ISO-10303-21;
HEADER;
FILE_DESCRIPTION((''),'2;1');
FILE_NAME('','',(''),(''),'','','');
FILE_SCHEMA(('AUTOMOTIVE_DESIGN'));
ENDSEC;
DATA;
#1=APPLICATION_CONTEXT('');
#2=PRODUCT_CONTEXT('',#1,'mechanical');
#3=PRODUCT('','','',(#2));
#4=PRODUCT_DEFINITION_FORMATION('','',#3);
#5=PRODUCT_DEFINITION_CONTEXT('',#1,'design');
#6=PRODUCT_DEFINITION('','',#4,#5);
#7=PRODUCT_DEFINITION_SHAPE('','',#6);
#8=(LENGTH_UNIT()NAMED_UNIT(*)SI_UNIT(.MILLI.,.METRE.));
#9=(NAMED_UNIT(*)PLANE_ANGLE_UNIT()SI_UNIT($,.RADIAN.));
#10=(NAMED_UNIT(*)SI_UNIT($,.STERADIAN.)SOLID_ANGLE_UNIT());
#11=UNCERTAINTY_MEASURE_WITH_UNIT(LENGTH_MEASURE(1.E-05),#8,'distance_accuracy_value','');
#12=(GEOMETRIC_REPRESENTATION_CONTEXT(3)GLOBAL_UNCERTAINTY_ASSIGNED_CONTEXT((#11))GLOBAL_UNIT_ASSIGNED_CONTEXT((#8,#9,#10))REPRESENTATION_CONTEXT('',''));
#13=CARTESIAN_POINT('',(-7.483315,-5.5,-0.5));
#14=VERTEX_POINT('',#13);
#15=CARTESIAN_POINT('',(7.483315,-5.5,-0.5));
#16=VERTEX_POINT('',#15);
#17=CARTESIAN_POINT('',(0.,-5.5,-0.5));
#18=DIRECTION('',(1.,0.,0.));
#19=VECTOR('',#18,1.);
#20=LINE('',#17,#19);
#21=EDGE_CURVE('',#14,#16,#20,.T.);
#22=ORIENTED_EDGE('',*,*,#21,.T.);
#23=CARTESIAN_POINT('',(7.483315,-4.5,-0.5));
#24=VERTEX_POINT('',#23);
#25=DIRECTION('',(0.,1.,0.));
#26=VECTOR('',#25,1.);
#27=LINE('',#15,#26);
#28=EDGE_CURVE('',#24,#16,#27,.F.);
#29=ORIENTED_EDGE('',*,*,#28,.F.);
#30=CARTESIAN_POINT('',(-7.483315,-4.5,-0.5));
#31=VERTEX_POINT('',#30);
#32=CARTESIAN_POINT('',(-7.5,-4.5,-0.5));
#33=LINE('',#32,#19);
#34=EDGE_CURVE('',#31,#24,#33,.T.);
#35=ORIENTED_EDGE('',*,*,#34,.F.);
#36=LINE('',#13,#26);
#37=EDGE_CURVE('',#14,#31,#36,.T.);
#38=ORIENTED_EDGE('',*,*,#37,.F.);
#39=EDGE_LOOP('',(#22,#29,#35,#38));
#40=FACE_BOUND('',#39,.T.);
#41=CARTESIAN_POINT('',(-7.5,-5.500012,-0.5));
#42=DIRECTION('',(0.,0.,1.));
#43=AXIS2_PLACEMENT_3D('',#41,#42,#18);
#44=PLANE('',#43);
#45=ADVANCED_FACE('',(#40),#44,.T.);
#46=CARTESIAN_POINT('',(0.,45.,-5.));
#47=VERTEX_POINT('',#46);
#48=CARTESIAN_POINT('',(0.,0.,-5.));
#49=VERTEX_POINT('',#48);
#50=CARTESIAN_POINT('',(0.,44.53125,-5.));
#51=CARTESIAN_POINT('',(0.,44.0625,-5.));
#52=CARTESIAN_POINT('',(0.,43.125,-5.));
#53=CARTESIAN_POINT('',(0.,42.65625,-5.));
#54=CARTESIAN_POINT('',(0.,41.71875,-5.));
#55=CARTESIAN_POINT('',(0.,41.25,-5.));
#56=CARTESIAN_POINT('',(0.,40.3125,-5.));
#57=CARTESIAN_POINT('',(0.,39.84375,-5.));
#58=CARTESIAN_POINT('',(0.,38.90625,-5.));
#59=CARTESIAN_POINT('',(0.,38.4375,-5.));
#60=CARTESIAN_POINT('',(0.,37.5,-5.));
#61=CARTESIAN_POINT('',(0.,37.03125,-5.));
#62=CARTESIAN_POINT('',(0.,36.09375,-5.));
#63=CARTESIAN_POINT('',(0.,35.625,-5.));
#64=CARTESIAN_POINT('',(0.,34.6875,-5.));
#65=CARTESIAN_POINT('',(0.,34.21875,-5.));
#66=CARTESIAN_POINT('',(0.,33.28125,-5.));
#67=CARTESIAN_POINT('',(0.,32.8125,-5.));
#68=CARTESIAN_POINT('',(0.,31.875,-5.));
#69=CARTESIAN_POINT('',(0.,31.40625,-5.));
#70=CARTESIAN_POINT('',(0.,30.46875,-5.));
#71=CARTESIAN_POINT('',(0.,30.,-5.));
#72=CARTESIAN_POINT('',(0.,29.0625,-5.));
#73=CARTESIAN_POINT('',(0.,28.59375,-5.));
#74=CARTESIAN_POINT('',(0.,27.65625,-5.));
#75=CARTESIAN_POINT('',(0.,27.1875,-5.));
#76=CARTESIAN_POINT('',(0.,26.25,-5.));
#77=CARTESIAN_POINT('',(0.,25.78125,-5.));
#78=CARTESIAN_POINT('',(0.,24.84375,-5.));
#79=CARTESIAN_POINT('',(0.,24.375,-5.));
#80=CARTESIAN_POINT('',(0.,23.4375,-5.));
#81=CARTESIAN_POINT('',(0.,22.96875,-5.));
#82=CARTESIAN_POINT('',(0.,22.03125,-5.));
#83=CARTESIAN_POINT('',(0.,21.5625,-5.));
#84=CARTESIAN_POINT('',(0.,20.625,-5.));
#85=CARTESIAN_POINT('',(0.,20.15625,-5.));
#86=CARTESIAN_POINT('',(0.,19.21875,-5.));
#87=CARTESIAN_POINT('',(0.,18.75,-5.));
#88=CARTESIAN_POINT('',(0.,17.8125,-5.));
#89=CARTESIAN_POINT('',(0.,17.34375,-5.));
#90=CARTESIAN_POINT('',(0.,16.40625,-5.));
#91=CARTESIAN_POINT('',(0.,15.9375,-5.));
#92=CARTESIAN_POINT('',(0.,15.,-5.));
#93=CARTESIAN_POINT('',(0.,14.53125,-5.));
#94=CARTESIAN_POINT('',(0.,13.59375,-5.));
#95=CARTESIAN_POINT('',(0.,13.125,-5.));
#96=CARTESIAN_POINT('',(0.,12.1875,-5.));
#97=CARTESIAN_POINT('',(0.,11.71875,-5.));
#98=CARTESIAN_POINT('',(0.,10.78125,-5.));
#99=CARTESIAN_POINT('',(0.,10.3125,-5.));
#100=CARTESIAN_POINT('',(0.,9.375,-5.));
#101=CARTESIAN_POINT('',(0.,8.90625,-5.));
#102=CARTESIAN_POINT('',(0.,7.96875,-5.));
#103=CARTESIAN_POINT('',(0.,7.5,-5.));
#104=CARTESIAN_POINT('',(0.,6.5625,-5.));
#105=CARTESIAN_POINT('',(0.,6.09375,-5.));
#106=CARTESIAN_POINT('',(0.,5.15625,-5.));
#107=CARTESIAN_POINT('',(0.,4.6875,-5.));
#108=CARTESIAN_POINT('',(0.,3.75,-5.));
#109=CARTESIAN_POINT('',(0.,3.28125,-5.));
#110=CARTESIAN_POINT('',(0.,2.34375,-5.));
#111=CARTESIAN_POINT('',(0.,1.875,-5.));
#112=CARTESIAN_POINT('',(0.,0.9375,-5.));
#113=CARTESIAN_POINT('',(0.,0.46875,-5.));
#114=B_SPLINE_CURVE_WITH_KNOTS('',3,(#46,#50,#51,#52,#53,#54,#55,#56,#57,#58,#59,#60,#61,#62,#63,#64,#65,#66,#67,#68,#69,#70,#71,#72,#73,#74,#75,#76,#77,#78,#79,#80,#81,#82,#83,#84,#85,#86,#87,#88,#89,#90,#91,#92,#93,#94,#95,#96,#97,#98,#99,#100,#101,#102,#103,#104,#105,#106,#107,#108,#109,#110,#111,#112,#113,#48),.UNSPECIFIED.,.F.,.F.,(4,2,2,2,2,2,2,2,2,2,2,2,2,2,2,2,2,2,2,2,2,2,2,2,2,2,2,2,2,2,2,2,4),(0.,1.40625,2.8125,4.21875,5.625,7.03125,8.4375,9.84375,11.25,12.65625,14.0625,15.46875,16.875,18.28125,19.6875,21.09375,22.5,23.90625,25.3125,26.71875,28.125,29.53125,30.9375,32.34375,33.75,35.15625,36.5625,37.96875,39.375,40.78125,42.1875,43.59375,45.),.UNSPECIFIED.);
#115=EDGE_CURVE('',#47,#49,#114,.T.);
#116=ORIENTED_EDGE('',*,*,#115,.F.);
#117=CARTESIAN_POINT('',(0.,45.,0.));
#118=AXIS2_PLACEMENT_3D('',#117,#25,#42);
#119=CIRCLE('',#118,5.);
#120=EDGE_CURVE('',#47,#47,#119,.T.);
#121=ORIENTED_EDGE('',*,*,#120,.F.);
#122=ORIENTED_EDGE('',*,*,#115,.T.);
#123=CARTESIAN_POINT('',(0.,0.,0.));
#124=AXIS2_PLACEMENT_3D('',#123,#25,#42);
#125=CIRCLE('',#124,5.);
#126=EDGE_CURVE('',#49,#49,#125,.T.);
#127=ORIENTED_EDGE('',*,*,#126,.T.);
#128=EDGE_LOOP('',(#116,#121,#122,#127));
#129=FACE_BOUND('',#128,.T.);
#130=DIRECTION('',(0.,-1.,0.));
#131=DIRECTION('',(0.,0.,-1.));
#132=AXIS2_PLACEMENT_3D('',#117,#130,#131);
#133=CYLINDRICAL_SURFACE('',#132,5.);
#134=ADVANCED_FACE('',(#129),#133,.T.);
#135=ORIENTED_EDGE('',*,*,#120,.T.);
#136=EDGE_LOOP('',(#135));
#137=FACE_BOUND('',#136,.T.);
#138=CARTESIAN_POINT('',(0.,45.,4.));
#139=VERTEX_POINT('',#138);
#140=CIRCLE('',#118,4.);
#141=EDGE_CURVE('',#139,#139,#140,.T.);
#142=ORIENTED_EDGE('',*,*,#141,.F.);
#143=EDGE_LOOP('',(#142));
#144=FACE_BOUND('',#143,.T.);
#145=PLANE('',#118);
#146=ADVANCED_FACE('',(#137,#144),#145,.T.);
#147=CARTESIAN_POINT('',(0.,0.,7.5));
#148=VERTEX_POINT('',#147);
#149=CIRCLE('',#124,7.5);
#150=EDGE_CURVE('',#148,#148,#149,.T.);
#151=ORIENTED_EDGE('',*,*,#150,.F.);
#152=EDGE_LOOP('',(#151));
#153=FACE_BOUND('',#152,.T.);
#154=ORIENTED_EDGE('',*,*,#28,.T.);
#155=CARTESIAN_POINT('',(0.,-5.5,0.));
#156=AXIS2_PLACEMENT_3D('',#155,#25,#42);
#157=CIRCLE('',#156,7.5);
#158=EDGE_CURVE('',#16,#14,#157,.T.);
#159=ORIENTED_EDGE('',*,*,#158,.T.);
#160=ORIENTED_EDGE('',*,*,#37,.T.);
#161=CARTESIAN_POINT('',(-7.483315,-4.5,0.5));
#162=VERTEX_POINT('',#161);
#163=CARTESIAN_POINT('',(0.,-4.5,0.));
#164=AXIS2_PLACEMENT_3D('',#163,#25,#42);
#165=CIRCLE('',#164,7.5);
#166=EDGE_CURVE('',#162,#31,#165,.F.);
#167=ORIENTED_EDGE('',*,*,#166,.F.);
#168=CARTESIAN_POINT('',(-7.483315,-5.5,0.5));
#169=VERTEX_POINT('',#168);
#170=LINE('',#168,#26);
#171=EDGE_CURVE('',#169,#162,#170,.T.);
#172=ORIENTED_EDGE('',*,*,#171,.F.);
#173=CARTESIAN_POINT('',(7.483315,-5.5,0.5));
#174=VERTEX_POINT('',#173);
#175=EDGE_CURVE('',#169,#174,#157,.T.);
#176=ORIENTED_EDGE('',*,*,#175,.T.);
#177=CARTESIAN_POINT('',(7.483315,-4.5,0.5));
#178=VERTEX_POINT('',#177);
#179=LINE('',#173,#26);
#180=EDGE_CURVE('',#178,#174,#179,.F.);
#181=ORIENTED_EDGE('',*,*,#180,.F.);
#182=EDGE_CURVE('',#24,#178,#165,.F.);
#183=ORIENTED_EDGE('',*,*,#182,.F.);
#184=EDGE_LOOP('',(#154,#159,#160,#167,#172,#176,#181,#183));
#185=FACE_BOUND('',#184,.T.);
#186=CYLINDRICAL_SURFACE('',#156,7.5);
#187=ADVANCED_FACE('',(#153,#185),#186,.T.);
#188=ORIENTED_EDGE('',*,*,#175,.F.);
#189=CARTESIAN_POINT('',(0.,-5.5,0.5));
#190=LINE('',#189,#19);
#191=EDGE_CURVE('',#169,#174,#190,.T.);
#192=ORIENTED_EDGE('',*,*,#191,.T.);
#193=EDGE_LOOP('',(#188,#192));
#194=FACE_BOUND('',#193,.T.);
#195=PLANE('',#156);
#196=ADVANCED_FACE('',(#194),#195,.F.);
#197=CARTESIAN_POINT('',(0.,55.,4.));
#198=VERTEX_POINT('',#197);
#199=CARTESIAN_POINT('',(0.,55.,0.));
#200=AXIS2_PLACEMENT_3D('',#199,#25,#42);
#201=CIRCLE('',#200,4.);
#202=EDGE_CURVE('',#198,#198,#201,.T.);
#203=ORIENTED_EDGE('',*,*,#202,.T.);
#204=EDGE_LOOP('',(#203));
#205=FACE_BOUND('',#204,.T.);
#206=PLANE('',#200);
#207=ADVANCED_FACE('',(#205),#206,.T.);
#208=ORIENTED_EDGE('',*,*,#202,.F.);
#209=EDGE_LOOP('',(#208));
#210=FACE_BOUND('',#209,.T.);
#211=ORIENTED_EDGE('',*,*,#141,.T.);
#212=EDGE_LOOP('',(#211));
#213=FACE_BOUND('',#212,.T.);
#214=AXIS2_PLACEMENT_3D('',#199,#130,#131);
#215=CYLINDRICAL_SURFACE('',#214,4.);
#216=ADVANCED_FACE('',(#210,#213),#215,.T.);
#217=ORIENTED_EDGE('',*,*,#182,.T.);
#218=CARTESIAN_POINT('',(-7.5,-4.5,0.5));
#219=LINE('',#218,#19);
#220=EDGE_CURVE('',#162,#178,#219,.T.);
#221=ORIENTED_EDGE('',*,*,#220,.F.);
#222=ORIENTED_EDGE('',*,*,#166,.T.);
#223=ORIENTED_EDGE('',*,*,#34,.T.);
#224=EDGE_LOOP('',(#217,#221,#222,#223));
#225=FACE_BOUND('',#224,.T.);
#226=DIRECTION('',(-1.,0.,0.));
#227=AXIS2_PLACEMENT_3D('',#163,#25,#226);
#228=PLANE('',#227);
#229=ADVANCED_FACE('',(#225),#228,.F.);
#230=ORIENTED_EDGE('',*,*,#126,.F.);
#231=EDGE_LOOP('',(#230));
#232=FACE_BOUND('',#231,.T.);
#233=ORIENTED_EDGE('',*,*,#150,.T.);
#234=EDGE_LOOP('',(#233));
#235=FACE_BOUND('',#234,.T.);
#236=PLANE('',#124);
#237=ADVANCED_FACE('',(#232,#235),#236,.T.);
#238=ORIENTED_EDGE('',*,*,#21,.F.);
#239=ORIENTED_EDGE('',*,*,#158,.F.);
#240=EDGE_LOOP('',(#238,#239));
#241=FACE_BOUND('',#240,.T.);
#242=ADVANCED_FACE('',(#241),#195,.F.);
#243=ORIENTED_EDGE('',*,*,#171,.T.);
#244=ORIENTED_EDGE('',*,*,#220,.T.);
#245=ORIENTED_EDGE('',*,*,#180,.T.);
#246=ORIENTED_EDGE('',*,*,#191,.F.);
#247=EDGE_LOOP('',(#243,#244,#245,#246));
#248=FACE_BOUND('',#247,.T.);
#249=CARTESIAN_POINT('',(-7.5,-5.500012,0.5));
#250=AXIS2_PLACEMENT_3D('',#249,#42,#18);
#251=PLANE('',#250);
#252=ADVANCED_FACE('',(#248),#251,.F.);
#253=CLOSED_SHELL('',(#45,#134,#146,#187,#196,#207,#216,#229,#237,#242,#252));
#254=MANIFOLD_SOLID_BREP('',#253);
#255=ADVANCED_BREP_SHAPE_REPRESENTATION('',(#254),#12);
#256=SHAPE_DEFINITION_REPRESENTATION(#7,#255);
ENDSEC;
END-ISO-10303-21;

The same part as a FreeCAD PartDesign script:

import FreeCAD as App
import Part
import Sketcher
Q = App.Units.Quantity


def add_polygon(sketch, points):
    """Adds a closed chain of lines whose ends are joined by coincident constraints."""
    first, n = sketch.GeometryCount, len(points)
    for a, b in zip(points, points[1:] + points[:1]):
        sketch.addGeometry(Part.LineSegment(App.Vector(*a, 0), App.Vector(*b, 0)), False)
    for i in range(n):
        sketch.addConstraint(Sketcher.Constraint("Coincident", first + i, 2, first + (i + 1) % n, 1))

doc = App.newDocument("Part")
body = doc.addObject("PartDesign::Body", "Body")

# Sketch on XZ plane
sketch1 = body.newObject("Sketcher::SketchObject", "Sketch")
sketch1.AttachmentSupport = (doc.getObject("XZ_Plane"), [""])
sketch1.MapMode = "FlatFace"
sketch1.addGeometry(Part.Circle(App.Vector(0, 0, 0), App.Vector(0, 0, 1), 7.5), False)
sketch1.addConstraint([
    Sketcher.Constraint("Coincident", 0, 3, -1, 1),
    Sketcher.Constraint("Diameter", 0, Q("15 mm")),
])
pad1 = body.newObject("PartDesign::Pad", "Pad")
pad1.Profile = sketch1
pad1.Length = 5.5

# Sketch on XZ plane
sketch2 = body.newObject("Sketcher::SketchObject", "Sketch001")
sketch2.AttachmentSupport = (doc.getObject("XZ_Plane"), [""])
sketch2.MapMode = "FlatFace"
sketch2.addGeometry(Part.Circle(App.Vector(0, 0, 0), App.Vector(0, 0, 1), 5), False)
sketch2.addConstraint([
    Sketcher.Constraint("Coincident", 0, 3, -1, 1),
    Sketcher.Constraint("Diameter", 0, Q("10 mm")),
])
pad2 = body.newObject("PartDesign::Pad", "Pad001")
pad2.Profile = sketch2
pad2.Length = 45
pad2.Reversed = True

# Sketch on XZ plane
sketch3 = body.newObject("Sketcher::SketchObject", "Sketch002")
sketch3.AttachmentSupport = (doc.getObject("XZ_Plane"), [""])
sketch3.MapMode = "FlatFace"
sketch3.AttachmentOffset = App.Placement(App.Vector(0, 0, -45), App.Rotation())
sketch3.addGeometry(Part.Circle(App.Vector(0, 0, 0), App.Vector(0, 0, 1), 4), False)
sketch3.addConstraint([
    Sketcher.Constraint("Coincident", 0, 3, -1, 1),
    Sketcher.Constraint("Diameter", 0, Q("8 mm")),
])
pad3 = body.newObject("PartDesign::Pad", "Pad002")
pad3.Profile = sketch3
pad3.Length = 10
pad3.Reversed = True

# Sketch on XZ plane
sketch4 = body.newObject("Sketcher::SketchObject", "Sketch003")
sketch4.AttachmentSupport = (doc.getObject("XZ_Plane"), [""])
sketch4.MapMode = "FlatFace"
sketch4.AttachmentOffset = App.Placement(App.Vector(0, 0, 5.5), App.Rotation())
add_polygon(sketch4, [(-7.5, 0.5), (-7.5, -0.5), (7.5, -0.5), (7.5, 0.5)])  # lines 0-3
sketch4.addConstraint([
    Sketcher.Constraint("Vertical", 0),
    Sketcher.Constraint("Horizontal", 1),
    Sketcher.Constraint("Vertical", 2),
    Sketcher.Constraint("Horizontal", 3),
    Sketcher.Constraint("Symmetric", 0, 2, 2, 2, -1, 1),
    Sketcher.Constraint("DistanceX", 1, 1, 1, 2, Q("15 mm")),
    Sketcher.Constraint("DistanceY", 0, 2, 0, 1, Q("1 mm")),
])
pocket1 = body.newObject("PartDesign::Pocket", "Pocket")
pocket1.Profile = sketch4
pocket1.Type = "TwoLengths"
pocket1.Length = 62.422716
pocket1.Length2 = 1
pocket1.Reversed = True

doc.recompute()
